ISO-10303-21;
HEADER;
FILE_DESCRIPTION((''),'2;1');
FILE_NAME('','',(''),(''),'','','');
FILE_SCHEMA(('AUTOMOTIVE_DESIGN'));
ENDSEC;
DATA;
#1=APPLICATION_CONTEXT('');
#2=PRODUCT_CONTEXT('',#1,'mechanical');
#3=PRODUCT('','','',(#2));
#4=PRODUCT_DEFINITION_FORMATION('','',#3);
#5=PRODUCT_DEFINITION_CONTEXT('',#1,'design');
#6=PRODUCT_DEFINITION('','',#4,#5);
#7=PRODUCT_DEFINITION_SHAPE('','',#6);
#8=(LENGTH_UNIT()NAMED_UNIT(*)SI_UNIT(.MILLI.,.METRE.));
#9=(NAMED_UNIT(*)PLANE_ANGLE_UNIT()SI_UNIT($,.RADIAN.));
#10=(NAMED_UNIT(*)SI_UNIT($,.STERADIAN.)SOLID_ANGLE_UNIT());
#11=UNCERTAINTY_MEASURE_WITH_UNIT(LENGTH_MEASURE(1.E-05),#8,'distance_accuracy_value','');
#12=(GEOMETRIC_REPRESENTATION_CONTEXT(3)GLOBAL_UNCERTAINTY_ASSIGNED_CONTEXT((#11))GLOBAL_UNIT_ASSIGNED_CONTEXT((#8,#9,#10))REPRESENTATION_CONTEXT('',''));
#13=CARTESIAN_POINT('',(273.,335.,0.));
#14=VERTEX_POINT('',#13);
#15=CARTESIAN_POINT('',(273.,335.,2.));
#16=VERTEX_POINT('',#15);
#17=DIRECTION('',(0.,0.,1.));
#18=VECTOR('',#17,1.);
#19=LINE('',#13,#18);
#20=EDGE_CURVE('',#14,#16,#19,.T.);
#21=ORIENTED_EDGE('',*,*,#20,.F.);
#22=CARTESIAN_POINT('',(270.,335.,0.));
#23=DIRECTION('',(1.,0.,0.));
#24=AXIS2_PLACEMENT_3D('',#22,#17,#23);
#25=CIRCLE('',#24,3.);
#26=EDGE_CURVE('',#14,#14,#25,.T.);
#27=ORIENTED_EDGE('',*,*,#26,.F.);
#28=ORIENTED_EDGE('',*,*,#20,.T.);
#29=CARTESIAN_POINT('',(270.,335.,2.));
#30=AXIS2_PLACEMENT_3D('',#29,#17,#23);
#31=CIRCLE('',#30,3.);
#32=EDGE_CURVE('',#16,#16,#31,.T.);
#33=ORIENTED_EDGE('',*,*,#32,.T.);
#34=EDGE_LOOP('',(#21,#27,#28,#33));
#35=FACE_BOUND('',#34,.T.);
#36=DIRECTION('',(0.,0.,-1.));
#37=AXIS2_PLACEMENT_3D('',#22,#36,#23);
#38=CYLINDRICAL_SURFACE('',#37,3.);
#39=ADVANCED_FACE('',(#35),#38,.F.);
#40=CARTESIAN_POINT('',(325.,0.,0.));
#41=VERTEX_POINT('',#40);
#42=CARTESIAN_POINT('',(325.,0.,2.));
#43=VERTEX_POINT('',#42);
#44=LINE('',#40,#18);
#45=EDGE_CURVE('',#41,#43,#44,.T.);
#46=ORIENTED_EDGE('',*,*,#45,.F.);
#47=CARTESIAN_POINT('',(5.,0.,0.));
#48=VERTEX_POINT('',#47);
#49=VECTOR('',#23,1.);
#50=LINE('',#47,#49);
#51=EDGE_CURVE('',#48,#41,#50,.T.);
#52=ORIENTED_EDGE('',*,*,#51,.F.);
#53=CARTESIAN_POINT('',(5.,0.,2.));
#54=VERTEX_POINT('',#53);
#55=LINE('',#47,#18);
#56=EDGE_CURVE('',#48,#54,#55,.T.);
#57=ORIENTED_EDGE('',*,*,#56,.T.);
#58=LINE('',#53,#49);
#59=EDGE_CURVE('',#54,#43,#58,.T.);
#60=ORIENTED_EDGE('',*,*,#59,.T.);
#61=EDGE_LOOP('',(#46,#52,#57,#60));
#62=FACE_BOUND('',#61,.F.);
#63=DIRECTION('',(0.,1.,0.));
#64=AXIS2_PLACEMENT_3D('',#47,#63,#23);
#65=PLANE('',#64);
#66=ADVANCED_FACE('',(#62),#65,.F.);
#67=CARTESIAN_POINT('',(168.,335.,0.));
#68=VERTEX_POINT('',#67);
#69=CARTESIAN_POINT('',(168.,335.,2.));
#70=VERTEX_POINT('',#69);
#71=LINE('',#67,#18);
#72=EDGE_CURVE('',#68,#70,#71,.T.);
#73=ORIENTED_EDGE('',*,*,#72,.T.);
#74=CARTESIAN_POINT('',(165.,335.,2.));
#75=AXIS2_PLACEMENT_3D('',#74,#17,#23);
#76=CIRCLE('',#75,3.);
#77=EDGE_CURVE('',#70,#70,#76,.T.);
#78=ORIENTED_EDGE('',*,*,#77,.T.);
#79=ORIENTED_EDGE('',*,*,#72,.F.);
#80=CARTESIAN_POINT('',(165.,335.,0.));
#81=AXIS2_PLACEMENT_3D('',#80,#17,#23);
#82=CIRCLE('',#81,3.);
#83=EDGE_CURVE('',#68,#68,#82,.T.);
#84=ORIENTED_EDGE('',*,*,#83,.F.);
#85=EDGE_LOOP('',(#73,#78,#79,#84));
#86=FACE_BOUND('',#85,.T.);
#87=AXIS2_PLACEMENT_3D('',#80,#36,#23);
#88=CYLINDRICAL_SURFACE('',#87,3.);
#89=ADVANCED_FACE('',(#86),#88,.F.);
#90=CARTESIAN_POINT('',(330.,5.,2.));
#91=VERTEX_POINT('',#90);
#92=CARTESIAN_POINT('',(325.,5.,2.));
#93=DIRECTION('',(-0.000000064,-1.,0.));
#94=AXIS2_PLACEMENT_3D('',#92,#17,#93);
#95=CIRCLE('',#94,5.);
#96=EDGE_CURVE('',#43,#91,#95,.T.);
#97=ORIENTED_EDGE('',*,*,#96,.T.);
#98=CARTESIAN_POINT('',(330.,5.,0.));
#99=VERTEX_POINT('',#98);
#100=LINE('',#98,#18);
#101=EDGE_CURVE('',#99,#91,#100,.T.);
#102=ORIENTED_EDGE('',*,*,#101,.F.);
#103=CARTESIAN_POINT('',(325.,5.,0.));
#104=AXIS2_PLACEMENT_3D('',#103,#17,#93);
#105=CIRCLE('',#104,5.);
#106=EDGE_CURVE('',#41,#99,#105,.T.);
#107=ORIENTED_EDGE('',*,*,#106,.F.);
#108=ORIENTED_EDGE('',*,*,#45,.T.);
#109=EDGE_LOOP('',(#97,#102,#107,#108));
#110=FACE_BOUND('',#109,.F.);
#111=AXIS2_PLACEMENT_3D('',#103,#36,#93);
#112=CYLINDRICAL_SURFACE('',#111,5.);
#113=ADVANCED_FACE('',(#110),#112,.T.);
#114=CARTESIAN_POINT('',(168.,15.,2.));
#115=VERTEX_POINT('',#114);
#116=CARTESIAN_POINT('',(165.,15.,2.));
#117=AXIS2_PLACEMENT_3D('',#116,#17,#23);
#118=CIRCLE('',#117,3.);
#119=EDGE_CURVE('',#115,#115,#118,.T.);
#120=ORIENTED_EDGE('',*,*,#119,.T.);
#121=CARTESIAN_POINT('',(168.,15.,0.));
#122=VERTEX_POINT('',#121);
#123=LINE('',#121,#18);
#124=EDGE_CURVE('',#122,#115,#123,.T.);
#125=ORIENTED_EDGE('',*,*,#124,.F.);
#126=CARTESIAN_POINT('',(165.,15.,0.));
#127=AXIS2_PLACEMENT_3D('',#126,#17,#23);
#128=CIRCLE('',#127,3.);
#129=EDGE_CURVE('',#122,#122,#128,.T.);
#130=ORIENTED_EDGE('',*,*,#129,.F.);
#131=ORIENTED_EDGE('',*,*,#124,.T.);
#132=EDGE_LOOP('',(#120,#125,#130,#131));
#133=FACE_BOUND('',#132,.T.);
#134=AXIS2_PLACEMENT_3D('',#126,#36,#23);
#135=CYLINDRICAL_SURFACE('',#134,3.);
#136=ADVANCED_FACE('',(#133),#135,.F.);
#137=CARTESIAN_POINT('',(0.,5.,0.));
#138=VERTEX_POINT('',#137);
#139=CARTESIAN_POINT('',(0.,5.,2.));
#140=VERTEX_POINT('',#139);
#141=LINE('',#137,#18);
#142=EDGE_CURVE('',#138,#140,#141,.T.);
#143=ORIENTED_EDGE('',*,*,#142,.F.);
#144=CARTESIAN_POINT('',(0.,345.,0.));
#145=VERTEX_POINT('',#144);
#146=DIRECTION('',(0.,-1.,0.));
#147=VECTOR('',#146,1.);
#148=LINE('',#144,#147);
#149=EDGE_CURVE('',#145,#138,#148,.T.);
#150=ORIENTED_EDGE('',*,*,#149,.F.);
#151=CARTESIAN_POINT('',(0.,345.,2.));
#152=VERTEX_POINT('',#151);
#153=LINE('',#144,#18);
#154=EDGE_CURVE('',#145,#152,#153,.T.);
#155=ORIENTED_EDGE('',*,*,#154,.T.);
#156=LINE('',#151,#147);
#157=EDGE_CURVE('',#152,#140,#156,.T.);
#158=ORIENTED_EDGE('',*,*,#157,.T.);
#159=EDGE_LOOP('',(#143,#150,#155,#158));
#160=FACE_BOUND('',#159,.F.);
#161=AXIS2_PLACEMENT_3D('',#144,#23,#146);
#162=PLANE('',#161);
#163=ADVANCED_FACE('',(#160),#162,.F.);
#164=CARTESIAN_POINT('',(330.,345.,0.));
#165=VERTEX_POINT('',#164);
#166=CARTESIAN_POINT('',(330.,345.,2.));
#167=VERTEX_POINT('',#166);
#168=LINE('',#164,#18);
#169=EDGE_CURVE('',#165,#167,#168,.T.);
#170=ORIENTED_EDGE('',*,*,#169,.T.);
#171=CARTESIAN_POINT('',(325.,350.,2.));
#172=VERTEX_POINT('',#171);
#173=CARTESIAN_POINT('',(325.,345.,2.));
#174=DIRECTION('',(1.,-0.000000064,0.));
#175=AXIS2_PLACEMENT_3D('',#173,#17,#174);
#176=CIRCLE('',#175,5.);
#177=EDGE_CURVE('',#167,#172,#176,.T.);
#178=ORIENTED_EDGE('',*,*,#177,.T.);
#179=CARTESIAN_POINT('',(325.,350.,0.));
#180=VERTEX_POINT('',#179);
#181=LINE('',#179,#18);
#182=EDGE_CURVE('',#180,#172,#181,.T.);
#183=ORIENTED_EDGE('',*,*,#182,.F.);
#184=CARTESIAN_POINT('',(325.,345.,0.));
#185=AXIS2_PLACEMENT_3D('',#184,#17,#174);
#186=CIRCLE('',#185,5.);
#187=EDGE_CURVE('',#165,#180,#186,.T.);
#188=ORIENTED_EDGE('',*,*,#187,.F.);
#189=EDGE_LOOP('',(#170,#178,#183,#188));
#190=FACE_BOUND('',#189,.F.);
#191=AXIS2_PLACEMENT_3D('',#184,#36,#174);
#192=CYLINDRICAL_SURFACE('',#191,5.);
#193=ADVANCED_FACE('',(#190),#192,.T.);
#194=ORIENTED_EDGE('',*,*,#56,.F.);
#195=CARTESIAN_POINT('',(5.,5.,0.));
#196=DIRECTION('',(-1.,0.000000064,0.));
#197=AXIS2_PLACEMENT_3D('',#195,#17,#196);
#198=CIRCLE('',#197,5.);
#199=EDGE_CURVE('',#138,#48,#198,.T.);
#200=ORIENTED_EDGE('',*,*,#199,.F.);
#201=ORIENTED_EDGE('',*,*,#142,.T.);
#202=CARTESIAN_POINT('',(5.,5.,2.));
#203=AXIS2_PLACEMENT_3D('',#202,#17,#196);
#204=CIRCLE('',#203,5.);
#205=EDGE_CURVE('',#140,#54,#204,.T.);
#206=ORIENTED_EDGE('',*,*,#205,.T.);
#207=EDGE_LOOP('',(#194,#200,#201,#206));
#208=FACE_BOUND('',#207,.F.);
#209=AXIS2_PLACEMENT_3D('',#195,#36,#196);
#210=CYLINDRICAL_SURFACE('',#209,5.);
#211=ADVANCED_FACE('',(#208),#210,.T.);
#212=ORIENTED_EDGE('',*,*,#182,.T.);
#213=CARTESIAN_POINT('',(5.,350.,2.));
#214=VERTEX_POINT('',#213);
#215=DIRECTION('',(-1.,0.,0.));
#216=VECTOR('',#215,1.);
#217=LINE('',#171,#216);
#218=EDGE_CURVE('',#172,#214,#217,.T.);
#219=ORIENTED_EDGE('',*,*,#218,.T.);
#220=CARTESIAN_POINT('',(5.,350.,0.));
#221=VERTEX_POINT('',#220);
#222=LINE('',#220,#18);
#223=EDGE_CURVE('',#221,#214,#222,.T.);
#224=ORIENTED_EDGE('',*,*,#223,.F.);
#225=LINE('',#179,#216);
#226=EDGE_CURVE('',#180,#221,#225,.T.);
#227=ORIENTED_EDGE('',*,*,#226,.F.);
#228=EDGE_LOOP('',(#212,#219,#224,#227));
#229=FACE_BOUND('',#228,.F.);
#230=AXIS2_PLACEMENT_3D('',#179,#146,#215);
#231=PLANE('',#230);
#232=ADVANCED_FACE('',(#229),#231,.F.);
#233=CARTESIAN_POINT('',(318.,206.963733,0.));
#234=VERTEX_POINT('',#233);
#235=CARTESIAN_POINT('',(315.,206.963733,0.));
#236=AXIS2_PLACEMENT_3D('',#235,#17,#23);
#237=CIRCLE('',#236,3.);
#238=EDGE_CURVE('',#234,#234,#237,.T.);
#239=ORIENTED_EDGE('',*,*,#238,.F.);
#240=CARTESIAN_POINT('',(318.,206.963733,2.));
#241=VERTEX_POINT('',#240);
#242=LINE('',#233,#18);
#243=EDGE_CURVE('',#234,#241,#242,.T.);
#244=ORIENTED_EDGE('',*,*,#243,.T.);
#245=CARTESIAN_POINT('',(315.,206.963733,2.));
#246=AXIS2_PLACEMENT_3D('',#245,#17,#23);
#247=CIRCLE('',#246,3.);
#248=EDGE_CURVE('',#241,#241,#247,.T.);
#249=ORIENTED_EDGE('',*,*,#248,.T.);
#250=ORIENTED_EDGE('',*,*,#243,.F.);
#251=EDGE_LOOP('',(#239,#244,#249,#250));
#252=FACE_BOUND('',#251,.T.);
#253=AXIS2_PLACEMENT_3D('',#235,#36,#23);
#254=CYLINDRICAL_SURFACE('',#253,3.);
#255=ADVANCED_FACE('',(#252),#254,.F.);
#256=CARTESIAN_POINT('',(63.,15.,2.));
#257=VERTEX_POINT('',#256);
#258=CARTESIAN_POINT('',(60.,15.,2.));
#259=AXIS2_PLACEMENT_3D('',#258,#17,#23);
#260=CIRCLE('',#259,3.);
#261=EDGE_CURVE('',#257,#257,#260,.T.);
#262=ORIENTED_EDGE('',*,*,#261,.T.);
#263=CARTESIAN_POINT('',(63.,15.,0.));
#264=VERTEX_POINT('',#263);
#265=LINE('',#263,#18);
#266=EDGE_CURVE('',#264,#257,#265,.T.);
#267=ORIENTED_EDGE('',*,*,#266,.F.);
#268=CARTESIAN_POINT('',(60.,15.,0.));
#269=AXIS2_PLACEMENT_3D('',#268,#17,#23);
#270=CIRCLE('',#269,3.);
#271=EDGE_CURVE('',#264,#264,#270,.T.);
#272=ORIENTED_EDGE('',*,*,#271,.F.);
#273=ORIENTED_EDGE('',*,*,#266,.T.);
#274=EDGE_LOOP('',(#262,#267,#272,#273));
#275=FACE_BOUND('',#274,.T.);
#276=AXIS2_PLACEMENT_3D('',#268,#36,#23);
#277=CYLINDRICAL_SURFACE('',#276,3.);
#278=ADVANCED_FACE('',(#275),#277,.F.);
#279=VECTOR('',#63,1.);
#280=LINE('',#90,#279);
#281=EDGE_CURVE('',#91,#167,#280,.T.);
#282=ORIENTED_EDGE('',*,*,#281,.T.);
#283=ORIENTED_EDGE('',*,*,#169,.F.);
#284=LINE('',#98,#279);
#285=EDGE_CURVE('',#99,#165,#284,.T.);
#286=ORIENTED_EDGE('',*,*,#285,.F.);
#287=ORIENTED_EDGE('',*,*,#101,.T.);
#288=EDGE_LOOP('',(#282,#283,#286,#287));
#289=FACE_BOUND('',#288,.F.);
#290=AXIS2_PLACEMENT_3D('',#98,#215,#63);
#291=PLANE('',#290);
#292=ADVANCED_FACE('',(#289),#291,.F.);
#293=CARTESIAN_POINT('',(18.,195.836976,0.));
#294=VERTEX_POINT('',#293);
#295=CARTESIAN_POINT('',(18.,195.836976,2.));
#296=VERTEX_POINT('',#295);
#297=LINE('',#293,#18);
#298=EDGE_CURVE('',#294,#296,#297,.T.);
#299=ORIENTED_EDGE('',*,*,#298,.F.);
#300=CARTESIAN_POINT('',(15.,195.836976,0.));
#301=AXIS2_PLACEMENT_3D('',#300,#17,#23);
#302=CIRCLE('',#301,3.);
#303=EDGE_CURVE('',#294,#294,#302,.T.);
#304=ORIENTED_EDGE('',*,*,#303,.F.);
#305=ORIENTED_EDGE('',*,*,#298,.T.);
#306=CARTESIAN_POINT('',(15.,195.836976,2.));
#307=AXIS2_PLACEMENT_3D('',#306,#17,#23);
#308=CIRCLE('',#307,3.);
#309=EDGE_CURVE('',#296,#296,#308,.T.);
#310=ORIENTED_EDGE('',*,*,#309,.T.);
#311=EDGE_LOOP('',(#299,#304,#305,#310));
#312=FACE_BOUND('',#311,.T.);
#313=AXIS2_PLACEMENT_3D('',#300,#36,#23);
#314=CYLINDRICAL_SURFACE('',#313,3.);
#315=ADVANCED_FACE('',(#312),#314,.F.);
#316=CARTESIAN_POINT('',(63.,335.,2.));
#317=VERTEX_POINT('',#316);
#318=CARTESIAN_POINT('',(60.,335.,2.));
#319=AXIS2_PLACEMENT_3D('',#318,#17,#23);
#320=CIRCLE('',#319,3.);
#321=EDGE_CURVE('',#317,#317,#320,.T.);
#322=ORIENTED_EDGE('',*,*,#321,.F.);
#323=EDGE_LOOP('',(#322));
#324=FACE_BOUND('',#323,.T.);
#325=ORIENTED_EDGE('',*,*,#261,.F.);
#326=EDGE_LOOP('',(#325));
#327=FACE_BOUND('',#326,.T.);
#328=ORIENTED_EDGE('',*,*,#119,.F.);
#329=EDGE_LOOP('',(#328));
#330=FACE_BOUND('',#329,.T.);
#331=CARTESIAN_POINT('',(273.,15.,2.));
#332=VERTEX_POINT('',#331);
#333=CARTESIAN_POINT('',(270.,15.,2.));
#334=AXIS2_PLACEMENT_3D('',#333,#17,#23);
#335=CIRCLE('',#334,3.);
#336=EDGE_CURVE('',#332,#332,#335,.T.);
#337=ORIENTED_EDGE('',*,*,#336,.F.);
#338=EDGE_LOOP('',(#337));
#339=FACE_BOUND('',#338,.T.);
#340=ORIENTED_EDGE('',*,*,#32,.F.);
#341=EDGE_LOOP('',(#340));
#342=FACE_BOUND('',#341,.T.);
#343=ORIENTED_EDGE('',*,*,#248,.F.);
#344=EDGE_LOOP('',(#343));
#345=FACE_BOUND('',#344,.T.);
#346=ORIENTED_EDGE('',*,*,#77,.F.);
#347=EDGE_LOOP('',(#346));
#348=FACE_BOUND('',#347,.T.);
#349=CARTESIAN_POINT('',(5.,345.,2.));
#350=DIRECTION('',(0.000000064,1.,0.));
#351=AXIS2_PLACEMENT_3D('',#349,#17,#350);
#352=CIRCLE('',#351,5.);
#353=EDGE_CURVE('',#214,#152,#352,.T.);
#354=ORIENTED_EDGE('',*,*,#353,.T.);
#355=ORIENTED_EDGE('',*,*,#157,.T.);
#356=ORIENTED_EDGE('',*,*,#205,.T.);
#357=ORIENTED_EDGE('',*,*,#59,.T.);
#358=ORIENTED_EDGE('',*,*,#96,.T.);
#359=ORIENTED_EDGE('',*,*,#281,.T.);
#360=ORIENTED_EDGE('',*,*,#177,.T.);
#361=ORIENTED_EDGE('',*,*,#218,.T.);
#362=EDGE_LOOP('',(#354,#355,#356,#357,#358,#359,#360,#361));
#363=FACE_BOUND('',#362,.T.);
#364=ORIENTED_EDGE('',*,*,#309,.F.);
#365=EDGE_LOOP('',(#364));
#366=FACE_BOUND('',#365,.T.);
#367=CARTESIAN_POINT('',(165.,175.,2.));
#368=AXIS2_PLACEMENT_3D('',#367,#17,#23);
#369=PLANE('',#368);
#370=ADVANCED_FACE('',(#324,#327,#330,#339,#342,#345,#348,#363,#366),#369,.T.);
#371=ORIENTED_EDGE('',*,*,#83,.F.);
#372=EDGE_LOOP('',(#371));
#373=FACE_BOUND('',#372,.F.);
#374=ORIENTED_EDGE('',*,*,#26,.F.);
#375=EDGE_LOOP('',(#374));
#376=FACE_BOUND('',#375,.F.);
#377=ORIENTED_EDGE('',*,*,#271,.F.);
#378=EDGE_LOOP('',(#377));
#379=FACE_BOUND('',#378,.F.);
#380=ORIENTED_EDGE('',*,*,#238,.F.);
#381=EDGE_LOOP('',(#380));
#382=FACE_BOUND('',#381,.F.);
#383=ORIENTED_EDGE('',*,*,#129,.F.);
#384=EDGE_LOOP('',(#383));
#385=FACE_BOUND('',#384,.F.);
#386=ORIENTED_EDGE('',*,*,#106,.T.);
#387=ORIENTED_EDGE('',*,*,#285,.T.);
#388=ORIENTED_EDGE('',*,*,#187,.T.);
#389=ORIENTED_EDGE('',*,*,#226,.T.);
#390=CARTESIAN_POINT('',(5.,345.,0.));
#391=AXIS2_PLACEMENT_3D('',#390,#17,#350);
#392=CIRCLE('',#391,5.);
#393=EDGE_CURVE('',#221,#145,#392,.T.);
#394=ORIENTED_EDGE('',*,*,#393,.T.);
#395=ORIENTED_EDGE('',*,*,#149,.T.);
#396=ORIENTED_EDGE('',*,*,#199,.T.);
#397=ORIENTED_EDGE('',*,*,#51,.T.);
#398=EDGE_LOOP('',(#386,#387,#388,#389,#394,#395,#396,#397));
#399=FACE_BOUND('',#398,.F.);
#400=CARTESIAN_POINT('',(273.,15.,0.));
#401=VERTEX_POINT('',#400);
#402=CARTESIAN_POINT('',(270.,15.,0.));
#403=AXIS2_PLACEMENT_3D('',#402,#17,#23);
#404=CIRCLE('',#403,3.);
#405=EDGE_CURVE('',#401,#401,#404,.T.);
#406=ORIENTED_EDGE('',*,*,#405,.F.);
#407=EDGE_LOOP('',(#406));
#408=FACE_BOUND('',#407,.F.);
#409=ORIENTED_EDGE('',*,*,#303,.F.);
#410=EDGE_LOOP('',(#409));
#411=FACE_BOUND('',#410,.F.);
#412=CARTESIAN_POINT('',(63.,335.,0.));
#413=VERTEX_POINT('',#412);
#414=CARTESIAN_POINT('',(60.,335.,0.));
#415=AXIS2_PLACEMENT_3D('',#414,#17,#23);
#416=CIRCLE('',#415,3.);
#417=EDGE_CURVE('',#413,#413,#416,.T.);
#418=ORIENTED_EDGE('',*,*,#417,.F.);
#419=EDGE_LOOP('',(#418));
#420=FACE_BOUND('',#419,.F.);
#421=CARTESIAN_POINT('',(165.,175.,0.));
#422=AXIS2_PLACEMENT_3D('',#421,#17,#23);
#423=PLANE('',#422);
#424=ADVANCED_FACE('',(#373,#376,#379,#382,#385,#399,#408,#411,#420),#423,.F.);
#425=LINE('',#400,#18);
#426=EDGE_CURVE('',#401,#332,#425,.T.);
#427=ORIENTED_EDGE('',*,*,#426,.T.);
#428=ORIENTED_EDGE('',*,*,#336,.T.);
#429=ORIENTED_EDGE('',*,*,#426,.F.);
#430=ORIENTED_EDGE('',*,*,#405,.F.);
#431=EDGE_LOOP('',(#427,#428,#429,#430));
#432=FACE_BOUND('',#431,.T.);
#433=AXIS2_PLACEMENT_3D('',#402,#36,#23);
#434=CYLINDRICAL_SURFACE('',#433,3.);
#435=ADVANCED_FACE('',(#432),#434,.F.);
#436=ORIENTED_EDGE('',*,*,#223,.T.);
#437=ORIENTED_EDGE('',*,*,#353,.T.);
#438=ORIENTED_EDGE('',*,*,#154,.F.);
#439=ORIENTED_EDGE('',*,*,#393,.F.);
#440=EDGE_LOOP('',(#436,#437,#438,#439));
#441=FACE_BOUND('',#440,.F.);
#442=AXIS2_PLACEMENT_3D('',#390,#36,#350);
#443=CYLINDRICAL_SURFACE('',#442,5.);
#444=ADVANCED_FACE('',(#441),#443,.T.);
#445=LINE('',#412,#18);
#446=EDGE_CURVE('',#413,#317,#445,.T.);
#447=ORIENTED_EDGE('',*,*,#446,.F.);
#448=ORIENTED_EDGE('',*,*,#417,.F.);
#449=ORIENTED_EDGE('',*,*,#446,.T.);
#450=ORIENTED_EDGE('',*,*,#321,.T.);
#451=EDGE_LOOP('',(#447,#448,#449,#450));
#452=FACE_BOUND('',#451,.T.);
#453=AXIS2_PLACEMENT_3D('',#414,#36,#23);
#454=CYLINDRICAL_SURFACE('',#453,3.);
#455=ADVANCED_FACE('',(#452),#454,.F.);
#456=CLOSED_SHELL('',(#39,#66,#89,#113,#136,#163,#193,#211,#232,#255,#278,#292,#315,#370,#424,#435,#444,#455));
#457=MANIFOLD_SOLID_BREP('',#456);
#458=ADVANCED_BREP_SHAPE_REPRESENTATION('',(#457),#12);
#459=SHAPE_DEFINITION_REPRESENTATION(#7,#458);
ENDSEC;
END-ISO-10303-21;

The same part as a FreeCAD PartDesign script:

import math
import FreeCAD as App
import Part
import Sketcher

V = App.Vector
Q = App.Units.Quantity

doc = App.newDocument("Part")
params = doc.addObject("Spreadsheet::Sheet", "Params")
for row, (alias, value) in enumerate([
    ("sketch1_diameter", "6 mm"),
    ("sketch1_radius", "5 mm"),
    ("sketch1_width", "320 mm"),
    ("sketch1_height", "340 mm"),
    ("pad1_length", "2 mm"),
], start=1):
    params.set(f"A{row}", alias)
    params.set(f"B{row}", "=" + value)
    params.setAlias(f"B{row}", alias)

body = doc.addObject("PartDesign::Body", "Body")

sketch1 = body.newObject("Sketcher::SketchObject", "Sketch")
sketch1.AttachmentSupport = (doc.getObject("XY_Plane"), [""])
sketch1.MapMode = "FlatFace"
sketch1.addGeometry(Part.ArcOfCircle(Part.Circle(V(5, 5, 0), V(0, 0, 1), 5), math.radians(180), math.radians(270)), False)
sketch1.addGeometry(Part.LineSegment(V(5, 0, 0), V(325, 0, 0)), False)
sketch1.addGeometry(Part.ArcOfCircle(Part.Circle(V(325, 5, 0), V(0, 0, 1), 5), math.radians(-90), math.radians(0)), False)
sketch1.addGeometry(Part.LineSegment(V(330, 5, 0), V(330, 345, 0)), False)
sketch1.addGeometry(Part.ArcOfCircle(Part.Circle(V(325, 345, 0), V(0, 0, 1), 5), math.radians(0), math.radians(90)), False)
sketch1.addGeometry(Part.LineSegment(V(325, 350, 0), V(5, 350, 0)), False)
sketch1.addGeometry(Part.ArcOfCircle(Part.Circle(V(5, 345, 0), V(0, 0, 1), 5), math.radians(90), math.radians(180)), False)
sketch1.addGeometry(Part.LineSegment(V(0, 345, 0), V(0, 5, 0)), False)
sketch1.addGeometry(Part.Circle(V(60, 15, 0), V(0, 0, 1), 3), False)
sketch1.addGeometry(Part.Circle(V(165, 15, 0), V(0, 0, 1), 3), False)
sketch1.addGeometry(Part.Circle(V(270, 15, 0), V(0, 0, 1), 3), False)
sketch1.addGeometry(Part.Circle(V(15, 195.8, 0), V(0, 0, 1), 3), False)
sketch1.addGeometry(Part.Circle(V(60, 335, 0), V(0, 0, 1), 3), False)
sketch1.addGeometry(Part.Circle(V(315, 207, 0), V(0, 0, 1), 3), False)
sketch1.addGeometry(Part.Circle(V(165, 335, 0), V(0, 0, 1), 3), False)
sketch1.addGeometry(Part.Circle(V(270, 335, 0), V(0, 0, 1), 3), False)
sketch1.addConstraint(Sketcher.Constraint("Tangent", 0, 2, 1, 1))
sketch1.addConstraint(Sketcher.Constraint("Tangent", 1, 2, 2, 1))
sketch1.addConstraint(Sketcher.Constraint("Tangent", 2, 2, 3, 1))
sketch1.addConstraint(Sketcher.Constraint("Tangent", 3, 2, 4, 1))
sketch1.addConstraint(Sketcher.Constraint("Tangent", 4, 2, 5, 1))
sketch1.addConstraint(Sketcher.Constraint("Tangent", 5, 2, 6, 1))
sketch1.addConstraint(Sketcher.Constraint("Tangent", 6, 2, 7, 1))
sketch1.addConstraint(Sketcher.Constraint("Tangent", 7, 2, 0, 1))
sketch1.addConstraint(Sketcher.Constraint("Horizontal", 1))
sketch1.addConstraint(Sketcher.Constraint("Vertical", 3))
sketch1.addConstraint(Sketcher.Constraint("Horizontal", 5))
sketch1.addConstraint(Sketcher.Constraint("Vertical", 7))
sketch1.addConstraint(Sketcher.Constraint("Equal", 0, 2))
sketch1.addConstraint(Sketcher.Constraint("Equal", 2, 4))
sketch1.addConstraint(Sketcher.Constraint("Equal", 4, 6))
sketch1.addConstraint(Sketcher.Constraint("Equal", 8, 9))
sketch1.addConstraint(Sketcher.Constraint("Equal", 9, 10))
sketch1.addConstraint(Sketcher.Constraint("Equal", 10, 11))
sketch1.addConstraint(Sketcher.Constraint("Equal", 11, 12))
sketch1.addConstraint(Sketcher.Constraint("Equal", 12, 13))
sketch1.addConstraint(Sketcher.Constraint("Equal", 13, 14))
sketch1.addConstraint(Sketcher.Constraint("Equal", 14, 15))
sketch1.addConstraint(Sketcher.Constraint("PointOnObject", 0, 2, -1))
sketch1.addConstraint(Sketcher.Constraint("PointOnObject", 6, 2, -2))
sketch1.addConstraint(Sketcher.Constraint("Horizontal", 8, 3, 9, 3))
sketch1.addConstraint(Sketcher.Constraint("Horizontal", 9, 3, 10, 3))
sketch1.addConstraint(Sketcher.Constraint("Horizontal", 12, 3, 14, 3))
sketch1.addConstraint(Sketcher.Constraint("Horizontal", 14, 3, 15, 3))
sketch1.addConstraint(Sketcher.Constraint("Vertical", 8, 3, 12, 3))
sketch1.addConstraint(Sketcher.Constraint("Vertical", 9, 3, 14, 3))
sketch1.addConstraint(Sketcher.Constraint("Vertical", 10, 3, 15, 3))
sketch1.addConstraint(Sketcher.Constraint("Diameter", 8, Q("6 mm")))
sketch1.addConstraint(Sketcher.Constraint("Radius", 0, Q("5 mm")))
sketch1.addConstraint(Sketcher.Constraint("DistanceX", 1, 1, 1, 2, Q("320 mm")))
sketch1.addConstraint(Sketcher.Constraint("DistanceY", 3, 1, 3, 2, Q("340 mm")))
sketch1.addConstraint(Sketcher.Constraint("DistanceX", -1, 1, 8, 3, Q("60 mm")))
sketch1.addConstraint(Sketcher.Constraint("DistanceY", -1, 1, 8, 3, Q("15 mm")))
sketch1.addConstraint(Sketcher.Constraint("DistanceX", -1, 1, 9, 3, Q("165 mm")))
sketch1.addConstraint(Sketcher.Constraint("DistanceX", -1, 1, 10, 3, Q("270 mm")))
sketch1.addConstraint(Sketcher.Constraint("DistanceX", -1, 1, 11, 3, Q("15 mm")))
sketch1.addConstraint(Sketcher.Constraint("DistanceY", -1, 1, 12, 3, Q("335 mm")))
sketch1.addConstraint(Sketcher.Constraint("DistanceX", -1, 1, 13, 3, Q("315 mm")))
sketch1.addConstraint(Sketcher.Constraint("DistanceY", -1, 1, 11, 3, Q("195.836976 mm")))
sketch1.addConstraint(Sketcher.Constraint("DistanceY", -1, 1, 13, 3, Q("206.963733 mm")))
sketch1.setExpression("Constraints[31]", "Params.sketch1_diameter")
sketch1.setExpression("Constraints[32]", "Params.sketch1_radius")
sketch1.setExpression("Constraints[33]", "Params.sketch1_width")
sketch1.setExpression("Constraints[34]", "Params.sketch1_height")
pad1 = body.newObject("PartDesign::Pad", "Pad")
pad1.Profile = sketch1
pad1.setExpression("Length", "Params.pad1_length")

doc.recompute()
